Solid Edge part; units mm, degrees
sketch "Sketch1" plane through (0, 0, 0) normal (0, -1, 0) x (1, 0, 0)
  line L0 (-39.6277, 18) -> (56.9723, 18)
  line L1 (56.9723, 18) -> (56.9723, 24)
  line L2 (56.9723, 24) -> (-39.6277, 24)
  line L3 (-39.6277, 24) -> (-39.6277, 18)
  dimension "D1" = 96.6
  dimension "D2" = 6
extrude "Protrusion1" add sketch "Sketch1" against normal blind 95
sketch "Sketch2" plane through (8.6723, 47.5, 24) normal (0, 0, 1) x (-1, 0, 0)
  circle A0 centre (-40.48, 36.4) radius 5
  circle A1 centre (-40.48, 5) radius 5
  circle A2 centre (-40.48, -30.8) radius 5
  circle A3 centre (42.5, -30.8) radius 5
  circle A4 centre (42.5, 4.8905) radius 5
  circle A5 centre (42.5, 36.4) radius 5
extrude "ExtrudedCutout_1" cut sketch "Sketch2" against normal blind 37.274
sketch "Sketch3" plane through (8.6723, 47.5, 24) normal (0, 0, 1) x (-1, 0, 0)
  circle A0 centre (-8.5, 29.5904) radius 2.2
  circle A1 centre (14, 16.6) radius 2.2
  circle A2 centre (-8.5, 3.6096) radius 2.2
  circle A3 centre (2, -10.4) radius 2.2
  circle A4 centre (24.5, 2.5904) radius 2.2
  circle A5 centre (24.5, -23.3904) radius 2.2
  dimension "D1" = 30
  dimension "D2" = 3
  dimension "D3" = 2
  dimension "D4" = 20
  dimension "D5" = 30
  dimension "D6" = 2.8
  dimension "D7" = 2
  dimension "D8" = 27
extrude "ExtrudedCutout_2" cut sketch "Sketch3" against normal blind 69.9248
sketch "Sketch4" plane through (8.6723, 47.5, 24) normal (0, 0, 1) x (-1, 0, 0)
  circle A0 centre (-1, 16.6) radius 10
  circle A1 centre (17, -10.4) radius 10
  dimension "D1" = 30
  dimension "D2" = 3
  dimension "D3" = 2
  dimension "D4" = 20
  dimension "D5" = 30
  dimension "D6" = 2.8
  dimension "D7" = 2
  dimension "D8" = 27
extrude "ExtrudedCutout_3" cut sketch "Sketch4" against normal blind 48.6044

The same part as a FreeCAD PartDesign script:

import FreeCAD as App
import Part
import Sketcher
from FreeCAD import Vector
Q = App.Units.Quantity


def add_polygon(sketch, points):
    """Adds a closed chain of lines whose ends are joined by coincident constraints."""
    first, n = sketch.GeometryCount, len(points)
    for a, b in zip(points, points[1:] + points[:1]):
        sketch.addGeometry(Part.LineSegment(App.Vector(*a, 0), App.Vector(*b, 0)), False)
    for i in range(n):
        sketch.addConstraint(Sketcher.Constraint("Coincident", first + i, 2, first + (i + 1) % n, 1))

doc = App.newDocument("Part")
body = doc.addObject("PartDesign::Body", "Body")

# Sketch on XZ plane
sketch1 = body.newObject("Sketcher::SketchObject", "Sketch")
sketch1.AttachmentSupport = (doc.getObject("XZ_Plane"), [""])
sketch1.MapMode = "FlatFace"
add_polygon(sketch1, [(-40, 24), (-40, 18), (57, 18), (57, 24)])  # lines 0-3
sketch1.addConstraint(Sketcher.Constraint("Vertical", 0))
sketch1.addConstraint(Sketcher.Constraint("Horizontal", 1))
sketch1.addConstraint(Sketcher.Constraint("Vertical", 2))
sketch1.addConstraint(Sketcher.Constraint("Horizontal", 3))
sketch1.addConstraint(Sketcher.Constraint("DistanceY", 0, 2, 0, 1, Q("6 mm")))
sketch1.addConstraint(Sketcher.Constraint("DistanceX", 1, 1, 1, 2, Q("96.6 mm")))
sketch1.addConstraint(Sketcher.Constraint("DistanceY", -1, 1, 0, 2, Q("18 mm")))
sketch1.addConstraint(Sketcher.Constraint("DistanceX", 0, 2, -1, 1, Q("39.6277 mm")))
pad1 = body.newObject("PartDesign::Pad", "Pad")
pad1.Profile = sketch1
pad1.Length = 95
pad1.Reversed = True

# Sketch on XY plane
sketch2 = body.newObject("Sketcher::SketchObject", "Sketch001")
sketch2.AttachmentSupport = (doc.getObject("XY_Plane"), [""])
sketch2.MapMode = "FlatFace"
sketch2.AttachmentOffset = App.Placement(Vector(0, 0, 24), App.Rotation())
sketch2.addGeometry(Part.Circle(Vector(49, 11, 0), Vector(0, 0, 1), 5), False)
sketch2.addGeometry(Part.Circle(Vector(49, 42, 0), Vector(0, 0, 1), 5), False)
sketch2.addGeometry(Part.Circle(Vector(49, 78, 0), Vector(0, 0, 1), 5), False)
sketch2.addGeometry(Part.Circle(Vector(-34, 78, 0), Vector(0, 0, 1), 5), False)
sketch2.addGeometry(Part.Circle(Vector(-34, 43, 0), Vector(0, 0, 1), 5), False)
sketch2.addGeometry(Part.Circle(Vector(-34, 11, 0), Vector(0, 0, 1), 5), False)
sketch2.addConstraint(Sketcher.Constraint("Equal", 0, 1))
sketch2.addConstraint(Sketcher.Constraint("Equal", 1, 2))
sketch2.addConstraint(Sketcher.Constraint("Equal", 2, 3))
sketch2.addConstraint(Sketcher.Constraint("Equal", 3, 4))
sketch2.addConstraint(Sketcher.Constraint("Equal", 4, 5))
sketch2.addConstraint(Sketcher.Constraint("Horizontal", 2, 3, 3, 3))
sketch2.addConstraint(Sketcher.Constraint("Horizontal", 0, 3, 5, 3))
sketch2.addConstraint(Sketcher.Constraint("Vertical", 0, 3, 1, 3))
sketch2.addConstraint(Sketcher.Constraint("Vertical", 1, 3, 2, 3))
sketch2.addConstraint(Sketcher.Constraint("Vertical", 3, 3, 4, 3))
sketch2.addConstraint(Sketcher.Constraint("Vertical", 4, 3, 5, 3))
sketch2.addConstraint(Sketcher.Constraint("Diameter", 0, Q("10 mm")))
sketch2.addConstraint(Sketcher.Constraint("DistanceY", -1, 1, 0, 3, Q("11.1 mm")))
sketch2.addConstraint(Sketcher.Constraint("DistanceY", -1, 1, 1, 3, Q("42.5 mm")))
sketch2.addConstraint(Sketcher.Constraint("DistanceY", -1, 1, 2, 3, Q("78.3 mm")))
sketch2.addConstraint(Sketcher.Constraint("DistanceX", 3, 3, 2, 3, Q("82.98 mm")))
sketch2.addConstraint(Sketcher.Constraint("DistanceX", -1, 1, 0, 3, Q("49.1523 mm")))
sketch2.addConstraint(Sketcher.Constraint("DistanceY", -1, 1, 4, 3, Q("42.6095 mm")))
pocket1 = body.newObject("PartDesign::Pocket", "Pocket")
pocket1.Profile = sketch2
pocket1.Length = 37.274

# Sketch on XY plane
sketch3 = body.newObject("Sketcher::SketchObject", "Sketch002")
sketch3.AttachmentSupport = (doc.getObject("XY_Plane"), [""])
sketch3.MapMode = "FlatFace"
sketch3.AttachmentOffset = App.Placement(Vector(0, 0, 24), App.Rotation())
sketch3.addGeometry(Part.Circle(Vector(17.2, 17.9, 0), Vector(0, 0, 1), 2.2), False)
sketch3.addGeometry(Part.Circle(Vector(-5.3, 30.9, 0), Vector(0, 0, 1), 2.2), False)
sketch3.addGeometry(Part.Circle(Vector(17.2, 43.9, 0), Vector(0, 0, 1), 2.2), False)
sketch3.addGeometry(Part.Circle(Vector(6.7, 57.9, 0), Vector(0, 0, 1), 2.2), False)
sketch3.addGeometry(Part.Circle(Vector(-15.8, 44.9, 0), Vector(0, 0, 1), 2.2), False)
sketch3.addGeometry(Part.Circle(Vector(-15.8, 70.9, 0), Vector(0, 0, 1), 2.2), False)
sketch3.addConstraint(Sketcher.Constraint("Equal", 0, 1))
sketch3.addConstraint(Sketcher.Constraint("Equal", 1, 2))
sketch3.addConstraint(Sketcher.Constraint("Equal", 2, 3))
sketch3.addConstraint(Sketcher.Constraint("Equal", 3, 4))
sketch3.addConstraint(Sketcher.Constraint("Equal", 4, 5))
sketch3.addConstraint(Sketcher.Constraint("Vertical", 0, 3, 2, 3))
sketch3.addConstraint(Sketcher.Constraint("Vertical", 4, 3, 5, 3))
sketch3.addConstraint(Sketcher.Constraint("Diameter", 0, Q("4.4 mm")))
sketch3.addConstraint(Sketcher.Constraint("DistanceX", 1, 3, 3, 3, Q("12 mm")))
sketch3.addConstraint(Sketcher.Constraint("DistanceY", 1, 3, 3, 3, Q("27 mm")))
sketch3.addConstraint(Sketcher.Constraint("DistanceX", 4, 3, 2, 3, Q("33 mm")))
sketch3.addConstraint(Sketcher.Constraint("DistanceY", 0, 3, 4, 3, Q("27 mm")))
sketch3.addConstraint(Sketcher.Constraint("DistanceY", 2, 3, 5, 3, Q("27 mm")))
sketch3.addConstraint(Sketcher.Constraint("DistanceY", -1, 1, 1, 3, Q("30.9 mm")))
sketch3.addConstraint(Sketcher.Constraint("DistanceX", 1, 3, 0, 3, Q("22.5 mm")))
sketch3.addConstraint(Sketcher.Constraint("DistanceX", -1, 1, 0, 3, Q("17.1723 mm")))
sketch3.addConstraint(Sketcher.Constraint("DistanceY", -1, 1, 0, 3, Q("17.9096 mm")))
sketch3.addConstraint(Sketcher.Constraint("DistanceY", -1, 1, 2, 3, Q("43.8904 mm")))
pocket2 = body.newObject("PartDesign::Pocket", "Pocket001")
pocket2.Profile = sketch3
pocket2.Length = 69.9248

# Sketch on XY plane
sketch4 = body.newObject("Sketcher::SketchObject", "Sketch003")
sketch4.AttachmentSupport = (doc.getObject("XY_Plane"), [""])
sketch4.MapMode = "FlatFace"
sketch4.AttachmentOffset = App.Placement(Vector(0, 0, 24), App.Rotation())
sketch4.addGeometry(Part.Circle(Vector(10, 31, 0), Vector(0, 0, 1), 10), False)
sketch4.addGeometry(Part.Circle(Vector(-8, 58, 0), Vector(0, 0, 1), 10), False)
sketch4.addConstraint(Sketcher.Constraint("Equal", 0, 1))
sketch4.addConstraint(Sketcher.Constraint("Diameter", 0, Q("20 mm")))
sketch4.addConstraint(Sketcher.Constraint("DistanceX", 1, 3, 0, 3, Q("18 mm")))
sketch4.addConstraint(Sketcher.Constraint("DistanceY", 0, 3, 1, 3, Q("27 mm")))
sketch4.addConstraint(Sketcher.Constraint("DistanceY", -1, 1, 0, 3, Q("30.9 mm")))
sketch4.addConstraint(Sketcher.Constraint("DistanceX", -1, 1, 0, 3, Q("9.6723 mm")))
pocket3 = body.newObject("PartDesign::Pocket", "Pocket002")
pocket3.Profile = sketch4
pocket3.Length = 48.6044

doc.recompute()
